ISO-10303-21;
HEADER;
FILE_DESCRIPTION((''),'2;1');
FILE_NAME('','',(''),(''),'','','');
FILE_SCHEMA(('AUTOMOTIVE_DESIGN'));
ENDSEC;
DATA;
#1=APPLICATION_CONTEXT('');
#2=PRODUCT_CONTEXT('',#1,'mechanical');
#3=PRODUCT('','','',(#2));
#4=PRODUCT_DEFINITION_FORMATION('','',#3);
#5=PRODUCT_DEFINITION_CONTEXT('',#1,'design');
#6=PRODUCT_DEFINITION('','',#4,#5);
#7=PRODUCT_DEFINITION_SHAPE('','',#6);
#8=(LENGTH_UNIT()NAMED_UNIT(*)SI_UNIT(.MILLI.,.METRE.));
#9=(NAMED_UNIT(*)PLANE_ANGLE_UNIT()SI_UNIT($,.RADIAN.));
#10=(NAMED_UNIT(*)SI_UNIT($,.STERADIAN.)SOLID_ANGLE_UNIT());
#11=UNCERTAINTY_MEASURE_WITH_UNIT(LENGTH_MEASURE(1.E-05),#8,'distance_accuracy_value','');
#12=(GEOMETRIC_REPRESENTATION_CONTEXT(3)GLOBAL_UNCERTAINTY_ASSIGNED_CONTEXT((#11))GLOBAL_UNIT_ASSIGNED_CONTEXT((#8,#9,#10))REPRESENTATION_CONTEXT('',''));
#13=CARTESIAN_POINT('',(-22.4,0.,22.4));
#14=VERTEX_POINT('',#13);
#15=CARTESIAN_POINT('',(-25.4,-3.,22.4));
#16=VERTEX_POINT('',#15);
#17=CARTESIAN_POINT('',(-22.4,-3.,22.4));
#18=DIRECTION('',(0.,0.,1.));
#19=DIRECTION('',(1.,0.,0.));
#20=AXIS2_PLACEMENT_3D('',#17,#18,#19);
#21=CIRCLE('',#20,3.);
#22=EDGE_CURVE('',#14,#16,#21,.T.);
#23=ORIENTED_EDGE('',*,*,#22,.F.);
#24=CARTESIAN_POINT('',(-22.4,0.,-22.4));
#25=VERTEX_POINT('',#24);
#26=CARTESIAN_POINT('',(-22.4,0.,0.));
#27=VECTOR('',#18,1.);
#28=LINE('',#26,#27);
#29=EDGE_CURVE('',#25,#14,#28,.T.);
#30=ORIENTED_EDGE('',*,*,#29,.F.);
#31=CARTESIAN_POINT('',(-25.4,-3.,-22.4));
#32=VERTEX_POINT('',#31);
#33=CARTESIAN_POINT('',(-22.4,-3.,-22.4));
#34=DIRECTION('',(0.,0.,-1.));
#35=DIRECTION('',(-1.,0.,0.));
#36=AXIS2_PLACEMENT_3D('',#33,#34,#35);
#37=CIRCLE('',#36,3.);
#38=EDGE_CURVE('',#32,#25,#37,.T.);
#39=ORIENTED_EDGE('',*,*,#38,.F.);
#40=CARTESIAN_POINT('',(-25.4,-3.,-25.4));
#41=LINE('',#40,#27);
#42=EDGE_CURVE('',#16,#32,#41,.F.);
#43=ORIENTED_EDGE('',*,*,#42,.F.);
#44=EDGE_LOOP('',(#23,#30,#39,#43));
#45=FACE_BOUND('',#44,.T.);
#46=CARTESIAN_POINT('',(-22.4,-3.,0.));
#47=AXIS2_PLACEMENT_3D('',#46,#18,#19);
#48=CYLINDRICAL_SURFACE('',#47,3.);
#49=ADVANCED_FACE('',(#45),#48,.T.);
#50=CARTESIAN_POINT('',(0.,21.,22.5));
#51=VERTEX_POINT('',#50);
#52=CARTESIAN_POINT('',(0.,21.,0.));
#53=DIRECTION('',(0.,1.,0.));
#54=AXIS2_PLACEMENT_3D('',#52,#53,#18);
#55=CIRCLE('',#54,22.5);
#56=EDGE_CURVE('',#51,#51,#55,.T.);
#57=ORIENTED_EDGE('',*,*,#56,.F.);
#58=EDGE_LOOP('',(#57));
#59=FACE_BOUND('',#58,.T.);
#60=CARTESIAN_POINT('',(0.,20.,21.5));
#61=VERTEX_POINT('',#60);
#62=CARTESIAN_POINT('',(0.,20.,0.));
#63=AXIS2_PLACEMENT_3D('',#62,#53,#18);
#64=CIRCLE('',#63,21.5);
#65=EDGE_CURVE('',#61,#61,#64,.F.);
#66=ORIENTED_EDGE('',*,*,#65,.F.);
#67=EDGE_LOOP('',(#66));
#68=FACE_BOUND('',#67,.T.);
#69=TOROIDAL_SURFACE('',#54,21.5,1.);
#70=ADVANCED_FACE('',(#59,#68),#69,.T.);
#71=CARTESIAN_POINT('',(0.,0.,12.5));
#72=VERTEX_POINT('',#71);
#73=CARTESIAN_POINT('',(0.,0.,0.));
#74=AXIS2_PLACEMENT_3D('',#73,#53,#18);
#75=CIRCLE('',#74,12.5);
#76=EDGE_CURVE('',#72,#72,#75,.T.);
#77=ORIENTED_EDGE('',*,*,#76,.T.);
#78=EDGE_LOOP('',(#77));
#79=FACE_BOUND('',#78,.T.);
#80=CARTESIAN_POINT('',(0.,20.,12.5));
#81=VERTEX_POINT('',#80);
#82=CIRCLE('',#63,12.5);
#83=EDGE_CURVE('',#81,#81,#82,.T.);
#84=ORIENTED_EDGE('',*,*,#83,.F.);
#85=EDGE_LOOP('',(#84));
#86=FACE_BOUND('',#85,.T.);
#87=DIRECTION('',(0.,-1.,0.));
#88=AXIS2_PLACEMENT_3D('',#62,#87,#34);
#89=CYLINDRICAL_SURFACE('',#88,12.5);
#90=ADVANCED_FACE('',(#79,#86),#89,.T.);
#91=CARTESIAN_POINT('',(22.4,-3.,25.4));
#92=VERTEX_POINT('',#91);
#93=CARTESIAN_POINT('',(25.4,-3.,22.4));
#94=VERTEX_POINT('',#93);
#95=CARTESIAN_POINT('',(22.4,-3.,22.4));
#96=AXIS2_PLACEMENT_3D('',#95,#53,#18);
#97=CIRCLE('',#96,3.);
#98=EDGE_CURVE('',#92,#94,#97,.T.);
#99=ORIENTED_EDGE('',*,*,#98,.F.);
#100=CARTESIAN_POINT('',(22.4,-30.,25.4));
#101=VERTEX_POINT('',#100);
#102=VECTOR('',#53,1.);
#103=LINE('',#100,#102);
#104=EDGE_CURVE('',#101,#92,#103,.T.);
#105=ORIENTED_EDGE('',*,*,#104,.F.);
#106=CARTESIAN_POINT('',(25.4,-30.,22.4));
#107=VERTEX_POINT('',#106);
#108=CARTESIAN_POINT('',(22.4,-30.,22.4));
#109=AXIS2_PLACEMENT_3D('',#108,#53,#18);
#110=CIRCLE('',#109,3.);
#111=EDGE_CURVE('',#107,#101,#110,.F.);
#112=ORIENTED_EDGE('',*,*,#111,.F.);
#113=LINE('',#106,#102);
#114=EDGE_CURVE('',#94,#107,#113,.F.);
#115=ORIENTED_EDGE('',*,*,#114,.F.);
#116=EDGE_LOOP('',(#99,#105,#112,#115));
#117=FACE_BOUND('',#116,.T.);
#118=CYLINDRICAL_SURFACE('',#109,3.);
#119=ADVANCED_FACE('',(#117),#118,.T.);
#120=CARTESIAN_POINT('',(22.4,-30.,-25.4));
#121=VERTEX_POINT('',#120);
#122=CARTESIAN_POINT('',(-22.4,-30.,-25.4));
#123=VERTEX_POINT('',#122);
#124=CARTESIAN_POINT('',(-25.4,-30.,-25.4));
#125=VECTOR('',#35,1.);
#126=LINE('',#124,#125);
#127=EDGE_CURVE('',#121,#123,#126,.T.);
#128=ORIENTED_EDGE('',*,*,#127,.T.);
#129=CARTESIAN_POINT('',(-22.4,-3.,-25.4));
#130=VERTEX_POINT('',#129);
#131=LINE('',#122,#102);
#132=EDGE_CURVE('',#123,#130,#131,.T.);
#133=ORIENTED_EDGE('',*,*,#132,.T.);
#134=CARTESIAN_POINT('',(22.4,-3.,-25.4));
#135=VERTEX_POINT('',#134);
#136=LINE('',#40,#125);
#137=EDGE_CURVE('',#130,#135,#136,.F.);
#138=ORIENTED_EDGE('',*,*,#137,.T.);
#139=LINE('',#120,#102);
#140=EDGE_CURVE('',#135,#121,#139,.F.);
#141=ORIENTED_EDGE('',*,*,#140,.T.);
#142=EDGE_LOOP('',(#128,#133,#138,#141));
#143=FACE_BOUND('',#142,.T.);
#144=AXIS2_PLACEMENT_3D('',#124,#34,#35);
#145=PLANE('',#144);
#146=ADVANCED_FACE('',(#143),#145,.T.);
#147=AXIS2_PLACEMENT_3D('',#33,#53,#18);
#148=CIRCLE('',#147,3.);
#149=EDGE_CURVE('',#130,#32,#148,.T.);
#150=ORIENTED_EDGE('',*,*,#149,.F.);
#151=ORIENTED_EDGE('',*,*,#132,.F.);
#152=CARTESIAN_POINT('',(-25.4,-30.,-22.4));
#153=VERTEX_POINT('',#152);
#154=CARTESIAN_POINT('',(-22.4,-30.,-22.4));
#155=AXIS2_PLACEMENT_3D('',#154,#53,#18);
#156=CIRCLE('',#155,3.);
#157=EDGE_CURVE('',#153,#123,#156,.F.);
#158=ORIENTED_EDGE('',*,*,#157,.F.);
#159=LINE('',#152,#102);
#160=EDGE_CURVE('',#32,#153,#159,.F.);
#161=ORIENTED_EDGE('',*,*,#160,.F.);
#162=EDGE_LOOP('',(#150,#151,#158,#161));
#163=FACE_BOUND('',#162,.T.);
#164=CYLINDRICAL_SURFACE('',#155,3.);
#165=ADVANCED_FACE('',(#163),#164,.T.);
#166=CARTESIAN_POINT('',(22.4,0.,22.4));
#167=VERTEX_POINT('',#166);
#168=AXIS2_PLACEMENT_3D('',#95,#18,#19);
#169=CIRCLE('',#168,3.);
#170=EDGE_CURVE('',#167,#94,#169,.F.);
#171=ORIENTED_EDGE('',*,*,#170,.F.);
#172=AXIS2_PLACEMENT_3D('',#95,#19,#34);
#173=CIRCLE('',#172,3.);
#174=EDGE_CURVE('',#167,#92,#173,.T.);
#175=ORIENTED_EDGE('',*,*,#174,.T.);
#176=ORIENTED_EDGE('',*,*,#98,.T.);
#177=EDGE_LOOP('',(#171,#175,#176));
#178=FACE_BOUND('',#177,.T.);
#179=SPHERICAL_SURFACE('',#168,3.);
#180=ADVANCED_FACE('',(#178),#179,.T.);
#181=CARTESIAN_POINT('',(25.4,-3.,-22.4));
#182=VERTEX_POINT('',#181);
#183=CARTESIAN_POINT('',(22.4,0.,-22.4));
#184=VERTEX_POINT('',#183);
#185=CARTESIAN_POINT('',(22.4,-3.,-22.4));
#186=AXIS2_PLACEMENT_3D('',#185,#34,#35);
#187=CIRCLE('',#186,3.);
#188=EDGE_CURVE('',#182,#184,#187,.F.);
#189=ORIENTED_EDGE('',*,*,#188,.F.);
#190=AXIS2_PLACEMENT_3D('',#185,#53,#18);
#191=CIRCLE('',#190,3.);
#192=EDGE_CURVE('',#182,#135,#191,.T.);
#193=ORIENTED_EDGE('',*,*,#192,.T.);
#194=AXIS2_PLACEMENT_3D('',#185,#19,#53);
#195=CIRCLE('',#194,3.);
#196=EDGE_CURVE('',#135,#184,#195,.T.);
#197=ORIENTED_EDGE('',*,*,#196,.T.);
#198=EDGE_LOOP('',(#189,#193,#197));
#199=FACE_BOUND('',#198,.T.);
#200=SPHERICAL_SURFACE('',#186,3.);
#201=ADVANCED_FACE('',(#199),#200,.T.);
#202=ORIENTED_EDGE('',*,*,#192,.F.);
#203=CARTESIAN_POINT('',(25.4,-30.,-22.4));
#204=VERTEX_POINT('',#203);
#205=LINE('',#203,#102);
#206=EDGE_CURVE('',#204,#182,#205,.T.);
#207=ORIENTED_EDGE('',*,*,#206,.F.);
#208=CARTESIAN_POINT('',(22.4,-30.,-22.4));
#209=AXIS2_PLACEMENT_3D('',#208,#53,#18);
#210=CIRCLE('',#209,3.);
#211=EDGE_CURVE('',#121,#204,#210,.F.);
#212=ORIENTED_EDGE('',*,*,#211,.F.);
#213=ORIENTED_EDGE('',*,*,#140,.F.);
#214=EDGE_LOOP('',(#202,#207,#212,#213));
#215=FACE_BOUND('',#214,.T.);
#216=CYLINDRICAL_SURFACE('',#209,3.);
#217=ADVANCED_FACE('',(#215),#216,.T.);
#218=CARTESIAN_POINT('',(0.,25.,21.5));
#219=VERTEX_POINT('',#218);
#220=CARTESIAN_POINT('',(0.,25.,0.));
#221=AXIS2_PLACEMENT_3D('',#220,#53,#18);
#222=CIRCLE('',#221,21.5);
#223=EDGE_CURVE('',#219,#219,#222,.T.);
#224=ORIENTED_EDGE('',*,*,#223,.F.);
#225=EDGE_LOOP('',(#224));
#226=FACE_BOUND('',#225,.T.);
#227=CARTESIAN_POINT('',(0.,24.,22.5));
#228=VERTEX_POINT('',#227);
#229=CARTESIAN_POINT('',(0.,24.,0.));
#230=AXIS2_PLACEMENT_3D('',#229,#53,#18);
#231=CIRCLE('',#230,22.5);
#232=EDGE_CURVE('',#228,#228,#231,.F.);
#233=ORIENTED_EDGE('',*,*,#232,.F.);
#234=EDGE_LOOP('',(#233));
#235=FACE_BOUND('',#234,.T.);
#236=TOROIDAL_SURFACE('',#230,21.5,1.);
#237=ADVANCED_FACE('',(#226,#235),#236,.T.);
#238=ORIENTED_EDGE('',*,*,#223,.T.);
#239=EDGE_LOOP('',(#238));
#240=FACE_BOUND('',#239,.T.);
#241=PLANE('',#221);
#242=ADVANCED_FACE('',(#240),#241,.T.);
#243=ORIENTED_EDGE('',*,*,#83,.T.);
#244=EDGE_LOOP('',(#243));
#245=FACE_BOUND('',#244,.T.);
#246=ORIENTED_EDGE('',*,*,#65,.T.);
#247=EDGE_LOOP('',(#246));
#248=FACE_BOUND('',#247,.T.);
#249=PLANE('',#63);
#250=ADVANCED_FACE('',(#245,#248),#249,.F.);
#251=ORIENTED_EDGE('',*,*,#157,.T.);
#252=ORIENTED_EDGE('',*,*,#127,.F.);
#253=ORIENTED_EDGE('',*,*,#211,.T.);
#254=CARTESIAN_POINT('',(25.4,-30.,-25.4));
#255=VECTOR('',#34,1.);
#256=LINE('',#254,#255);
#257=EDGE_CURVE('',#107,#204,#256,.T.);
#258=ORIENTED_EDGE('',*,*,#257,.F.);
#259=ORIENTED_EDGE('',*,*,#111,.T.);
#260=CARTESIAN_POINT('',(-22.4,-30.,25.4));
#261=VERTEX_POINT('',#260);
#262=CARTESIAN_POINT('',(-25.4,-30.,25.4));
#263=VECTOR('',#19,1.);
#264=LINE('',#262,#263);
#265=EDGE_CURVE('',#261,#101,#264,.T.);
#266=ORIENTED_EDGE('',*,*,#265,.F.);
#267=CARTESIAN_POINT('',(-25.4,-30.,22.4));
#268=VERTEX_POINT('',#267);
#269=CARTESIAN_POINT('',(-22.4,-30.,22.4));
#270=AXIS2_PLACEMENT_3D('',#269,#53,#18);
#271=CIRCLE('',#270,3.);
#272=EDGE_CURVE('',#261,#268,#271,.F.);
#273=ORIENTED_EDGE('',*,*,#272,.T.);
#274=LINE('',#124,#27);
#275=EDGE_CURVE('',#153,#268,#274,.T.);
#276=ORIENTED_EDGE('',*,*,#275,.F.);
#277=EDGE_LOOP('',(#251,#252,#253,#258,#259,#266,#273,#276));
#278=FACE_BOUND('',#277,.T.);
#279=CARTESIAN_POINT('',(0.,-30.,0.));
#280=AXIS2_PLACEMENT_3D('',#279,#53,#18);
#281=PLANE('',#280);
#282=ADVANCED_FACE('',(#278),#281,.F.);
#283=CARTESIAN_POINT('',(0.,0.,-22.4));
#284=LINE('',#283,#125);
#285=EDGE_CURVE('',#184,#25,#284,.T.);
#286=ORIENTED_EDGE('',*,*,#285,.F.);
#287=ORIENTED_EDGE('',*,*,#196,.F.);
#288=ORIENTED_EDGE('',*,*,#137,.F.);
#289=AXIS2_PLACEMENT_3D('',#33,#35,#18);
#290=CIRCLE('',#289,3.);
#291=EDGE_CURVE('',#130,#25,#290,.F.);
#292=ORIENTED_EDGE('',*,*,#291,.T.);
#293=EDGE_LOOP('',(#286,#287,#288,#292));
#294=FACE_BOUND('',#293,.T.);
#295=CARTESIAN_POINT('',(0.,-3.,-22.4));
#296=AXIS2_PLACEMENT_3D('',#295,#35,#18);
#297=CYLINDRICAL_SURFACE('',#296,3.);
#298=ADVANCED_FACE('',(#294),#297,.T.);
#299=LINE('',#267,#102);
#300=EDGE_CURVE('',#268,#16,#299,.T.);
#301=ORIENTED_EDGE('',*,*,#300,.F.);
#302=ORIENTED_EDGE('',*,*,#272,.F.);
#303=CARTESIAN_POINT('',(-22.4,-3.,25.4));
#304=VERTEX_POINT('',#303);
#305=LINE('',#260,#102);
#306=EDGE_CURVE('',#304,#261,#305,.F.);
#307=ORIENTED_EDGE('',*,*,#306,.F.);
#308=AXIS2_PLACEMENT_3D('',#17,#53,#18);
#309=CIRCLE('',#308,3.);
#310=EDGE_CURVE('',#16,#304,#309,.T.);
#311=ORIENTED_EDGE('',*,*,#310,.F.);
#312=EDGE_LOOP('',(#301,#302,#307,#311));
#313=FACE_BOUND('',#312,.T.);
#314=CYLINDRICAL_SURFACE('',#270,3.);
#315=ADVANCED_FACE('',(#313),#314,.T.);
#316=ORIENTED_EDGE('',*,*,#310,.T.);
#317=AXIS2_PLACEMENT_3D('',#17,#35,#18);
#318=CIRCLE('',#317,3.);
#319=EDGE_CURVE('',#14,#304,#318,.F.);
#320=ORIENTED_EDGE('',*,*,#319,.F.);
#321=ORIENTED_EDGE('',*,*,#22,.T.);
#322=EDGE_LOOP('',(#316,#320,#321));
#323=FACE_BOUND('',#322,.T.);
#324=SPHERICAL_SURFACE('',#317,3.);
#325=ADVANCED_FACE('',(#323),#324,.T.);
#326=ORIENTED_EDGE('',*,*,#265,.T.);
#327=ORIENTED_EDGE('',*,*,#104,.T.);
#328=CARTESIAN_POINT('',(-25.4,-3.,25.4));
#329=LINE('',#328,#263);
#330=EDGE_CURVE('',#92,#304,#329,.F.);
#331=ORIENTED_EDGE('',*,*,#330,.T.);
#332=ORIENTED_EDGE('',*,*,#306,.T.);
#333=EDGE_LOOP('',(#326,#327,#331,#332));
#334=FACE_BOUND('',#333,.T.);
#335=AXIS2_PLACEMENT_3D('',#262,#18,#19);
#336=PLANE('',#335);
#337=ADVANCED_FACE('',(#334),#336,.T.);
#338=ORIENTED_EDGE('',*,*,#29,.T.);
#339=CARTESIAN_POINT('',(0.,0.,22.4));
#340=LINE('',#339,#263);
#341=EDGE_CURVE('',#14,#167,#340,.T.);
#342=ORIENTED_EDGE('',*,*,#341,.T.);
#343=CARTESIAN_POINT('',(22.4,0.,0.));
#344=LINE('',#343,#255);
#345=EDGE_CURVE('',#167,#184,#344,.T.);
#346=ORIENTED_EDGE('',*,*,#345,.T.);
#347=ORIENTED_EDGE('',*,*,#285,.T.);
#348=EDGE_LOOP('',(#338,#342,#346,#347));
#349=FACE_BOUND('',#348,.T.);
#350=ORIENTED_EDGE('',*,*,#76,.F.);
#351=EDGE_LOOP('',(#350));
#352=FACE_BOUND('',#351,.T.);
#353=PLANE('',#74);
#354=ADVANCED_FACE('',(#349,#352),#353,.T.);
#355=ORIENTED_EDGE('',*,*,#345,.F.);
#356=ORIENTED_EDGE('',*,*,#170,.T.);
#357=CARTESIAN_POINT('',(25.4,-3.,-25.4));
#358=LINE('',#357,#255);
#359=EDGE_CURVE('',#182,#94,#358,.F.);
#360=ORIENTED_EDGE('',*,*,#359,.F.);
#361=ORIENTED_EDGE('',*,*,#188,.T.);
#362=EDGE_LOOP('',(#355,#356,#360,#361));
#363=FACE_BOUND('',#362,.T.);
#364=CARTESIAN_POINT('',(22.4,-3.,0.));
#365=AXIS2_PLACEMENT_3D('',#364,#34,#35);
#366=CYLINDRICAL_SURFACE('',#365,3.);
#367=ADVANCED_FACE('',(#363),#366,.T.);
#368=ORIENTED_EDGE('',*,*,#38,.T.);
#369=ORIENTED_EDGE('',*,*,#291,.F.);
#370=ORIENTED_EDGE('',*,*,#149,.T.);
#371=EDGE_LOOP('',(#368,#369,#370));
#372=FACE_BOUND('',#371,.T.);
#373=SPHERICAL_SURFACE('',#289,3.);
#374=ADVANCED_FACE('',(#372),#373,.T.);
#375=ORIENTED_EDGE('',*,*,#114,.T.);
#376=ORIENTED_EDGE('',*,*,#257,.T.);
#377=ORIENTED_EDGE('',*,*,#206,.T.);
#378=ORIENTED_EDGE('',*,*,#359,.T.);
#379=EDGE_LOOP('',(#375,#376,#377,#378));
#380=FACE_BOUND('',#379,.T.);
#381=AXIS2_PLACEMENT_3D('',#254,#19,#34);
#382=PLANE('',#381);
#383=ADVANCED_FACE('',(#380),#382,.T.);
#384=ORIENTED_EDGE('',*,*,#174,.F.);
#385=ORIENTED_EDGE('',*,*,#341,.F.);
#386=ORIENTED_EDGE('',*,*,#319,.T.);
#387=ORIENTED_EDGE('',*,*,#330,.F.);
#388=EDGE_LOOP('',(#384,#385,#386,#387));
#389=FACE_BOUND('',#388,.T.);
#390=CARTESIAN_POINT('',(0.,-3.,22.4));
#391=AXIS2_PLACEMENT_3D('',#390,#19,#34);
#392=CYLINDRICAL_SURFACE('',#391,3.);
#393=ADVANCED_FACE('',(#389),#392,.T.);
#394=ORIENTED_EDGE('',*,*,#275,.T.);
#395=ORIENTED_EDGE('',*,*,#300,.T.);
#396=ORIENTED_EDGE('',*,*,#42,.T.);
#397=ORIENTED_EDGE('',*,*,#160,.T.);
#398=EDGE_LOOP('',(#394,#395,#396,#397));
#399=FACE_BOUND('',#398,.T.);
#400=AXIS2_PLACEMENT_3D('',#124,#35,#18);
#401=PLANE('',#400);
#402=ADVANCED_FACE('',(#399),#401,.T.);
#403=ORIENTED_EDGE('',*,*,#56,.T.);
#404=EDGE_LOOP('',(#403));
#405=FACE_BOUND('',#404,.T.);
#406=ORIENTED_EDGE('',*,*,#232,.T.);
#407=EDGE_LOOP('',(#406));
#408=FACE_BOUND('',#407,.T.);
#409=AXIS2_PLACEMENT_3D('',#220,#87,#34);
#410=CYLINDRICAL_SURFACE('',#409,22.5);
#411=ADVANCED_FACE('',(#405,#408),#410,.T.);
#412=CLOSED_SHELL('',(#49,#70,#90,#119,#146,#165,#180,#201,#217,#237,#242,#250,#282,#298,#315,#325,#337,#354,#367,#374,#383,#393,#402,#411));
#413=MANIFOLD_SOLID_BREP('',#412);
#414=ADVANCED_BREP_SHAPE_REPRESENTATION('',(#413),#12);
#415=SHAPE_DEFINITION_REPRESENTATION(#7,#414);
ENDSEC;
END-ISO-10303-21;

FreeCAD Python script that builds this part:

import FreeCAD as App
import Part
import Sketcher

V = App.Vector


def edges_at(feature, points):
    """Names of the edges that pass closest to the given points."""
    edges = feature.Shape.Edges
    near = lambda p: min(range(len(edges)), key=lambda i: edges[i].distToShape(Part.Vertex(*p))[0])
    return sorted({f"Edge{near(p) + 1}" for p in points})


def add_polygon(sketch, points):
    """Adds a closed chain of lines whose ends are joined by coincident constraints."""
    first, n = sketch.GeometryCount, len(points)
    for a, b in zip(points, points[1:] + points[:1]):
        sketch.addGeometry(Part.LineSegment(App.Vector(*a, 0), App.Vector(*b, 0)), False)
    for i in range(n):
        sketch.addConstraint(Sketcher.Constraint("Coincident", first + i, 2, first + (i + 1) % n, 1))

doc = App.newDocument("Part")
body = doc.addObject("PartDesign::Body", "Body")

# Sketch on XZ plane
sketch1 = doc.addObject("Sketcher::SketchObject", "Sketch")
body.addObject(sketch1)
sketch1.AttachmentSupport = (doc.XZ_Plane, [""])
sketch1.MapMode = "FlatFace"
add_polygon(sketch1, [(-25, -25), (-25, 25), (25, 25), (25, -25)])  # lines 0-3
sketch1.addConstraint(Sketcher.Constraint("Vertical", 0))
sketch1.addConstraint(Sketcher.Constraint("Horizontal", 1))
sketch1.addConstraint(Sketcher.Constraint("Vertical", 2))
sketch1.addConstraint(Sketcher.Constraint("Horizontal", 3))
sketch1.addConstraint(Sketcher.Constraint("Symmetric", 0, 2, 2, 2, -1, 1))
sketch1.addConstraint(Sketcher.Constraint("Equal", 3, 0))
sketch1.addConstraint(Sketcher.Constraint("DistanceX", 1, 1, 1, 2, 50.8))
pad1 = doc.addObject("PartDesign::Pad", "Pad")
body.addObject(pad1)
pad1.Profile = sketch1
pad1.Length = 30

# Sketch on XZ plane
sketch2 = doc.addObject("Sketcher::SketchObject", "Sketch001")
body.addObject(sketch2)
sketch2.AttachmentSupport = (doc.XZ_Plane, [""])
sketch2.MapMode = "FlatFace"
sketch2.addGeometry(Part.Circle(V(0, 0, 0), V(0, 0, 1), 12), False)
sketch2.addConstraint(Sketcher.Constraint("Coincident", 0, 3, -1, 1))
sketch2.addConstraint(Sketcher.Constraint("Diameter", 0, 25.0))
pad2 = doc.addObject("PartDesign::Pad", "Pad001")
body.addObject(pad2)
pad2.Profile = sketch2
pad2.Length = 20
pad2.Reversed = True

# Sketch on XZ plane
sketch3 = doc.addObject("Sketcher::SketchObject", "Sketch002")
body.addObject(sketch3)
sketch3.AttachmentSupport = (doc.XZ_Plane, [""])
sketch3.MapMode = "FlatFace"
sketch3.AttachmentOffset = App.Placement(V(0, 0, -20), App.Rotation())
sketch3.addGeometry(Part.Circle(V(0, 0, 0), V(0, 0, 1), 22), False)
sketch3.addConstraint(Sketcher.Constraint("Coincident", 0, 3, -1, 1))
sketch3.addConstraint(Sketcher.Constraint("Diameter", 0, 45.0))
pad3 = doc.addObject("PartDesign::Pad", "Pad002")
body.addObject(pad3)
pad3.Profile = sketch3
pad3.Length = 5
pad3.Reversed = True
doc.recompute()

fillet = doc.addObject("PartDesign::Fillet", "Fillet")
body.addObject(fillet)
fillet.Base = (pad3, edges_at(pad3, [
    (0, 0, 25.4),
    (-25.4, 0, 0),
    (0, 0, -25.4),
    (25.4, 0, 0),
    (25.4, -15, 25.4),
    (-25.4, -15, 25.4),
    (-25.4, -15, -25.4),
    (25.4, -15, -25.4),
]))
fillet.Radius = 3
doc.recompute()

fillet2 = doc.addObject("PartDesign::Fillet", "Fillet001")
body.addObject(fillet2)
fillet2.Base = (fillet, edges_at(fillet, [(0, 20, -22.5), (0, 25, -22.5)]))
fillet2.Radius = 1

doc.recompute()
